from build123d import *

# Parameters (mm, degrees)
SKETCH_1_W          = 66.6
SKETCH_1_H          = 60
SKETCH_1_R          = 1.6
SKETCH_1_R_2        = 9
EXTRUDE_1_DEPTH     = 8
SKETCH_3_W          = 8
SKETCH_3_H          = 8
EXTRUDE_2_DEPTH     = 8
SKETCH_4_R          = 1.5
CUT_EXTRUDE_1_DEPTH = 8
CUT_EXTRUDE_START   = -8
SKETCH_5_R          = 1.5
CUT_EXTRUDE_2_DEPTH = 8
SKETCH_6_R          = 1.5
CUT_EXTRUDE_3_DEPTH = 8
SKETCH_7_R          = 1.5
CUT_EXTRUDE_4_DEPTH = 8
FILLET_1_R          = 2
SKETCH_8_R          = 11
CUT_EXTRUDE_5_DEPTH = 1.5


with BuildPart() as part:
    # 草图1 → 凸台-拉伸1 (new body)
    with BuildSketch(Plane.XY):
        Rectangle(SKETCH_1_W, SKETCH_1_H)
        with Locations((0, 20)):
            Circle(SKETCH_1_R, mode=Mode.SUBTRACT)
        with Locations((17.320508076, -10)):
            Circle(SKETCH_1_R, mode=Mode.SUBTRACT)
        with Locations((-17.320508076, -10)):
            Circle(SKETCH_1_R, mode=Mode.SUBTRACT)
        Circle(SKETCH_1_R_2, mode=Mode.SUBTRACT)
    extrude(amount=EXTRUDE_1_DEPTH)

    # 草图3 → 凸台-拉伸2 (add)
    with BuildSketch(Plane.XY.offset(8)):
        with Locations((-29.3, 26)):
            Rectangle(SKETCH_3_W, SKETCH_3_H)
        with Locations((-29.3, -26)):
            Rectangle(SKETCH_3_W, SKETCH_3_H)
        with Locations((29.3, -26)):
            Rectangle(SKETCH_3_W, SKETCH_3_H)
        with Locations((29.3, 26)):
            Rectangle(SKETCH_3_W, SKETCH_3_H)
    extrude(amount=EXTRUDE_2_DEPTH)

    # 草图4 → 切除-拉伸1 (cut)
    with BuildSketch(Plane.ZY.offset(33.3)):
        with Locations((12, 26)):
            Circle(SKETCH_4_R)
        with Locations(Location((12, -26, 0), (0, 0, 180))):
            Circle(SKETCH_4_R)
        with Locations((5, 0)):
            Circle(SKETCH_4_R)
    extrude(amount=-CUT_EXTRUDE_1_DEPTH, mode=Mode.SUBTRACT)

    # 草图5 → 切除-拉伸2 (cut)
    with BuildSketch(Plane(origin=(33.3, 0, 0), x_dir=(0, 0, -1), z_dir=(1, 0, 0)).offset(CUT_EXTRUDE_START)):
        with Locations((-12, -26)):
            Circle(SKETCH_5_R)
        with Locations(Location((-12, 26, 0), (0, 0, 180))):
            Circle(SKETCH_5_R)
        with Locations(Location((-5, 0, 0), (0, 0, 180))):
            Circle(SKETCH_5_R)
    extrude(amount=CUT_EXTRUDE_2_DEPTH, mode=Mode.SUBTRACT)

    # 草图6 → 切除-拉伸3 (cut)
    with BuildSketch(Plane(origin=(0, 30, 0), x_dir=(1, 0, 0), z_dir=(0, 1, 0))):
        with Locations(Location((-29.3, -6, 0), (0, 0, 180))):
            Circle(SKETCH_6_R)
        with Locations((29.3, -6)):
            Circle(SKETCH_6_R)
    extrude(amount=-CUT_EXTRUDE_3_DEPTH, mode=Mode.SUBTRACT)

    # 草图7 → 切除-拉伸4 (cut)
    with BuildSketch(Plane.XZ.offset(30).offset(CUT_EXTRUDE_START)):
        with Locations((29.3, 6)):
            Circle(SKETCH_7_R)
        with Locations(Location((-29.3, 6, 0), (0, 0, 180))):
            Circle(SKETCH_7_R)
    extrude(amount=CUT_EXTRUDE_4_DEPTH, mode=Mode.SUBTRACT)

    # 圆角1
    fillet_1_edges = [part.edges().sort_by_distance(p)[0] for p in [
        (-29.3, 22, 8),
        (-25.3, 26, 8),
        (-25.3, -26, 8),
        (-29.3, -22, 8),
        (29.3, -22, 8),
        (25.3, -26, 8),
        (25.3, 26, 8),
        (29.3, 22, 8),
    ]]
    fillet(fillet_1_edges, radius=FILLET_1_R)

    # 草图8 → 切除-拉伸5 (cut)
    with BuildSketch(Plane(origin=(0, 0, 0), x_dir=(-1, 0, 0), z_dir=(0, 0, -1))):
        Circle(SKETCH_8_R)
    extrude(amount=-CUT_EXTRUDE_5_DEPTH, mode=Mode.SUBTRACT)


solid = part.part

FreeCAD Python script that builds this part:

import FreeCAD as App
import Part
import Sketcher
from FreeCAD import Vector
Q = App.Units.Quantity


def edges_at(feature, points):
    """Names of the edges that pass closest to the given points."""
    edges = feature.Shape.Edges
    near = lambda p: min(range(len(edges)), key=lambda i: edges[i].distToShape(Part.Vertex(*p))[0])
    return sorted({f"Edge{near(p) + 1}" for p in points})

doc = App.newDocument("Part")
body = doc.addObject("PartDesign::Body", "Body")

sketch1 = body.newObject("Sketcher::SketchObject", "Sketch")
sketch1.AttachmentSupport = (doc.getObject("XY_Plane"), [""])
sketch1.MapMode = "FlatFace"
sketch1.addGeometry(Part.LineSegment(Vector(-33.3, 30, 0), Vector(-33.3, -30, 0)), False)
sketch1.addGeometry(Part.LineSegment(Vector(-33.3, -30, 0), Vector(33.3, -30, 0)), False)
sketch1.addGeometry(Part.LineSegment(Vector(33.3, -30, 0), Vector(33.3, 30, 0)), False)
sketch1.addGeometry(Part.LineSegment(Vector(33.3, 30, 0), Vector(-33.3, 30, 0)), False)
sketch1.addGeometry(Part.Circle(Vector(-17.3, -10, 0), Vector(0, 0, 1), 1.6), False)
sketch1.addGeometry(Part.Circle(Vector(17.3, -10, 0), Vector(0, 0, 1), 1.6), False)
sketch1.addGeometry(Part.Circle(Vector(0, 0, 0), Vector(0, 0, 1), 9), False)
sketch1.addGeometry(Part.Circle(Vector(0, 20, 0), Vector(0, 0, 1), 1.6), False)
sketch1.addConstraint(Sketcher.Constraint("Coincident", 0, 2, 1, 1))
sketch1.addConstraint(Sketcher.Constraint("Coincident", 1, 2, 2, 1))
sketch1.addConstraint(Sketcher.Constraint("Coincident", 2, 2, 3, 1))
sketch1.addConstraint(Sketcher.Constraint("Coincident", 3, 2, 0, 1))
sketch1.addConstraint(Sketcher.Constraint("Vertical", 0))
sketch1.addConstraint(Sketcher.Constraint("Horizontal", 1))
sketch1.addConstraint(Sketcher.Constraint("Vertical", 2))
sketch1.addConstraint(Sketcher.Constraint("Horizontal", 3))
sketch1.addConstraint(Sketcher.Constraint("Coincident", 6, 3, -1, 1))
sketch1.addConstraint(Sketcher.Constraint("Equal", 4, 5))
sketch1.addConstraint(Sketcher.Constraint("Equal", 5, 7))
sketch1.addConstraint(Sketcher.Constraint("Symmetric", 0, 2, 2, 2, -1, 1))
sketch1.addConstraint(Sketcher.Constraint("Symmetric", 4, 3, 5, 3, -2))
sketch1.addConstraint(Sketcher.Constraint("PointOnObject", 7, 3, -2))
sketch1.addConstraint(Sketcher.Constraint("Diameter", 6, Q("18 mm")))
sketch1.addConstraint(Sketcher.Constraint("Diameter", 4, Q("3.2 mm")))
sketch1.addConstraint(Sketcher.Constraint("DistanceY", 0, 2, 0, 1, Q("60 mm")))
sketch1.addConstraint(Sketcher.Constraint("DistanceX", 1, 1, 1, 2, Q("66.6 mm")))
sketch1.addConstraint(Sketcher.Constraint("DistanceY", 4, 3, -1, 1, Q("10 mm")))
sketch1.addConstraint(Sketcher.Constraint("DistanceY", -1, 1, 7, 3, Q("20 mm")))
sketch1.addConstraint(Sketcher.Constraint("DistanceX", 4, 3, -1, 1, Q("17.320508 mm")))
pad1 = body.newObject("PartDesign::Pad", "Pad")
pad1.Profile = sketch1
pad1.Length = 8

sketch2 = body.newObject("Sketcher::SketchObject", "Sketch001")
sketch2.AttachmentSupport = (doc.getObject("XY_Plane"), [""])
sketch2.MapMode = "FlatFace"
sketch2.AttachmentOffset = App.Placement(Vector(0, 0, 8), App.Rotation())
sketch2.addGeometry(Part.LineSegment(Vector(-33, 30, 0), Vector(-33, 22, 0)), False)
sketch2.addGeometry(Part.LineSegment(Vector(-33, 22, 0), Vector(-25, 22, 0)), False)
sketch2.addGeometry(Part.LineSegment(Vector(-25, 22, 0), Vector(-25, 30, 0)), False)
sketch2.addGeometry(Part.LineSegment(Vector(-25, 30, 0), Vector(-33, 30, 0)), False)
sketch2.addGeometry(Part.LineSegment(Vector(-33, -22, 0), Vector(-33, -30, 0)), False)
sketch2.addGeometry(Part.LineSegment(Vector(-33, -30, 0), Vector(-25, -30, 0)), False)
sketch2.addGeometry(Part.LineSegment(Vector(-25, -30, 0), Vector(-25, -22, 0)), False)
sketch2.addGeometry(Part.LineSegment(Vector(-25, -22, 0), Vector(-33, -22, 0)), False)
sketch2.addGeometry(Part.LineSegment(Vector(25, -22, 0), Vector(25, -30, 0)), False)
sketch2.addGeometry(Part.LineSegment(Vector(25, -30, 0), Vector(33, -30, 0)), False)
sketch2.addGeometry(Part.LineSegment(Vector(33, -30, 0), Vector(33, -22, 0)), False)
sketch2.addGeometry(Part.LineSegment(Vector(33, -22, 0), Vector(25, -22, 0)), False)
sketch2.addGeometry(Part.LineSegment(Vector(25, 30, 0), Vector(25, 22, 0)), False)
sketch2.addGeometry(Part.LineSegment(Vector(25, 22, 0), Vector(33, 22, 0)), False)
sketch2.addGeometry(Part.LineSegment(Vector(33, 22, 0), Vector(33, 30, 0)), False)
sketch2.addGeometry(Part.LineSegment(Vector(33, 30, 0), Vector(25, 30, 0)), False)
sketch2.addConstraint(Sketcher.Constraint("Coincident", 0, 2, 1, 1))
sketch2.addConstraint(Sketcher.Constraint("Coincident", 1, 2, 2, 1))
sketch2.addConstraint(Sketcher.Constraint("Coincident", 2, 2, 3, 1))
sketch2.addConstraint(Sketcher.Constraint("Coincident", 3, 2, 0, 1))
sketch2.addConstraint(Sketcher.Constraint("Coincident", 4, 2, 5, 1))
sketch2.addConstraint(Sketcher.Constraint("Coincident", 5, 2, 6, 1))
sketch2.addConstraint(Sketcher.Constraint("Coincident", 6, 2, 7, 1))
sketch2.addConstraint(Sketcher.Constraint("Coincident", 7, 2, 4, 1))
sketch2.addConstraint(Sketcher.Constraint("Coincident", 8, 2, 9, 1))
sketch2.addConstraint(Sketcher.Constraint("Coincident", 9, 2, 10, 1))
sketch2.addConstraint(Sketcher.Constraint("Coincident", 10, 2, 11, 1))
sketch2.addConstraint(Sketcher.Constraint("Coincident", 11, 2, 8, 1))
sketch2.addConstraint(Sketcher.Constraint("Coincident", 12, 2, 13, 1))
sketch2.addConstraint(Sketcher.Constraint("Coincident", 13, 2, 14, 1))
sketch2.addConstraint(Sketcher.Constraint("Coincident", 14, 2, 15, 1))
sketch2.addConstraint(Sketcher.Constraint("Coincident", 15, 2, 12, 1))
sketch2.addConstraint(Sketcher.Constraint("Vertical", 0))
sketch2.addConstraint(Sketcher.Constraint("Horizontal", 1))
sketch2.addConstraint(Sketcher.Constraint("Vertical", 2))
sketch2.addConstraint(Sketcher.Constraint("Horizontal", 3))
sketch2.addConstraint(Sketcher.Constraint("Vertical", 4))
sketch2.addConstraint(Sketcher.Constraint("Horizontal", 5))
sketch2.addConstraint(Sketcher.Constraint("Vertical", 6))
sketch2.addConstraint(Sketcher.Constraint("Horizontal", 7))
sketch2.addConstraint(Sketcher.Constraint("Vertical", 8))
sketch2.addConstraint(Sketcher.Constraint("Horizontal", 9))
sketch2.addConstraint(Sketcher.Constraint("Vertical", 10))
sketch2.addConstraint(Sketcher.Constraint("Horizontal", 11))
sketch2.addConstraint(Sketcher.Constraint("Vertical", 12))
sketch2.addConstraint(Sketcher.Constraint("Horizontal", 13))
sketch2.addConstraint(Sketcher.Constraint("Vertical", 14))
sketch2.addConstraint(Sketcher.Constraint("Horizontal", 15))
sketch2.addConstraint(Sketcher.Constraint("Symmetric", 2, 2, 8, 2, -1, 1))
sketch2.addConstraint(Sketcher.Constraint("Symmetric", 0, 2, 10, 2, -1, 1))
sketch2.addConstraint(Sketcher.Constraint("Symmetric", 6, 2, 12, 2, -1, 1))
sketch2.addConstraint(Sketcher.Constraint("Symmetric", 4, 2, 14, 2, -1, 1))
sketch2.addConstraint(Sketcher.Constraint("Symmetric", 5, 2, 8, 2, -2))
sketch2.addConstraint(Sketcher.Constraint("Symmetric", 7, 2, 10, 2, -2))
sketch2.addConstraint(Sketcher.Constraint("Equal", 15, 0))
sketch2.addConstraint(Sketcher.Constraint("DistanceX", 1, 1, 1, 2, Q("8 mm")))
sketch2.addConstraint(Sketcher.Constraint("DistanceY", -1, 1, 0, 2, Q("22 mm")))
sketch2.addConstraint(Sketcher.Constraint("DistanceX", 0, 2, -1, 1, Q("33.3 mm")))
pad2 = body.newObject("PartDesign::Pad", "Pad001")
pad2.Profile = sketch2
pad2.Length = 8

sketch3 = body.newObject("Sketcher::SketchObject", "Sketch002")
sketch3.AttachmentSupport = (doc.getObject("YZ_Plane"), [""])
sketch3.MapMode = "FlatFace"
sketch3.AttachmentOffset = App.Placement(Vector(0, 0, -33.3), App.Rotation())
sketch3.addGeometry(Part.Circle(Vector(26, 12, 0), Vector(0, 0, 1), 1.5), False)
sketch3.addGeometry(Part.Circle(Vector(-26, 12, 0), Vector(0, 0, 1), 1.5), False)
sketch3.addGeometry(Part.Circle(Vector(0, 5, 0), Vector(0, 0, 1), 1.5), False)
sketch3.addConstraint(Sketcher.Constraint("Equal", 0, 1))
sketch3.addConstraint(Sketcher.Constraint("Equal", 1, 2))
sketch3.addConstraint(Sketcher.Constraint("Symmetric", 0, 3, 1, 3, -2))
sketch3.addConstraint(Sketcher.Constraint("PointOnObject", 2, 3, -2))
sketch3.addConstraint(Sketcher.Constraint("Diameter", 0, Q("3 mm")))
sketch3.addConstraint(Sketcher.Constraint("DistanceX", -1, 1, 0, 3, Q("26 mm")))
sketch3.addConstraint(Sketcher.Constraint("DistanceY", -1, 1, 0, 3, Q("12 mm")))
sketch3.addConstraint(Sketcher.Constraint("DistanceY", -1, 1, 2, 3, Q("5 mm")))
pocket1 = body.newObject("PartDesign::Pocket", "Pocket")
pocket1.Profile = sketch3
pocket1.Length = 8
pocket1.Reversed = True

sketch4 = body.newObject("Sketcher::SketchObject", "Sketch003")
sketch4.AttachmentSupport = (doc.getObject("YZ_Plane"), [""])
sketch4.MapMode = "FlatFace"
sketch4.AttachmentOffset = App.Placement(Vector(0, 0, 25.3), App.Rotation())
sketch4.addGeometry(Part.Circle(Vector(-26, 12, 0), Vector(0, 0, 1), 1.5), False)
sketch4.addGeometry(Part.Circle(Vector(26, 12, 0), Vector(0, 0, 1), 1.5), False)
sketch4.addGeometry(Part.Circle(Vector(0, 5, 0), Vector(0, 0, 1), 1.5), False)
sketch4.addConstraint(Sketcher.Constraint("Equal", 0, 1))
sketch4.addConstraint(Sketcher.Constraint("Equal", 1, 2))
sketch4.addConstraint(Sketcher.Constraint("Symmetric", 0, 3, 1, 3, -2))
sketch4.addConstraint(Sketcher.Constraint("PointOnObject", 2, 3, -2))
sketch4.addConstraint(Sketcher.Constraint("Diameter", 0, Q("3 mm")))
sketch4.addConstraint(Sketcher.Constraint("DistanceX", 0, 3, -1, 1, Q("26 mm")))
sketch4.addConstraint(Sketcher.Constraint("DistanceY", -1, 1, 0, 3, Q("12 mm")))
sketch4.addConstraint(Sketcher.Constraint("DistanceY", -1, 1, 2, 3, Q("5 mm")))
pocket2 = body.newObject("PartDesign::Pocket", "Pocket001")
pocket2.Profile = sketch4
pocket2.Length = 8
pocket2.Reversed = True

sketch5 = body.newObject("Sketcher::SketchObject", "Sketch004")
sketch5.AttachmentSupport = (doc.getObject("XZ_Plane"), [""])
sketch5.MapMode = "FlatFace"
sketch5.AttachmentOffset = App.Placement(Vector(0, 0, -30), App.Rotation())
sketch5.addGeometry(Part.Circle(Vector(-29.3, 6, 0), Vector(0, 0, 1), 1.5), False)
sketch5.addGeometry(Part.Circle(Vector(29.3, 6, 0), Vector(0, 0, 1), 1.5), False)
sketch5.addConstraint(Sketcher.Constraint("Equal", 0, 1))
sketch5.addConstraint(Sketcher.Constraint("Symmetric", 0, 3, 1, 3, -2))
sketch5.addConstraint(Sketcher.Constraint("Diameter", 0, Q("3 mm")))
sketch5.addConstraint(Sketcher.Constraint("DistanceY", -1, 1, 0, 3, Q("6 mm")))
sketch5.addConstraint(Sketcher.Constraint("DistanceX", 0, 3, -1, 1, Q("29.3 mm")))
pocket3 = body.newObject("PartDesign::Pocket", "Pocket002")
pocket3.Profile = sketch5
pocket3.Length = 8
pocket3.Reversed = True

sketch6 = body.newObject("Sketcher::SketchObject", "Sketch005")
sketch6.AttachmentSupport = (doc.getObject("XZ_Plane"), [""])
sketch6.MapMode = "FlatFace"
sketch6.AttachmentOffset = App.Placement(Vector(0, 0, 22), App.Rotation())
sketch6.addGeometry(Part.Circle(Vector(29.3, 6, 0), Vector(0, 0, 1), 1.5), False)
sketch6.addGeometry(Part.Circle(Vector(-29.3, 6, 0), Vector(0, 0, 1), 1.5), False)
sketch6.addConstraint(Sketcher.Constraint("Equal", 0, 1))
sketch6.addConstraint(Sketcher.Constraint("Symmetric", 0, 3, 1, 3, -2))
sketch6.addConstraint(Sketcher.Constraint("Diameter", 0, Q("3 mm")))
sketch6.addConstraint(Sketcher.Constraint("DistanceY", -1, 1, 0, 3, Q("6 mm")))
sketch6.addConstraint(Sketcher.Constraint("DistanceX", -1, 1, 0, 3, Q("29.3 mm")))
pocket4 = body.newObject("PartDesign::Pocket", "Pocket003")
pocket4.Profile = sketch6
pocket4.Length = 8
pocket4.Reversed = True
doc.recompute()

fillet = body.newObject("PartDesign::Fillet", "Fillet")
fillet.Base = (pocket4, edges_at(pocket4, [
    (-29.3, 22, 8),
    (-25.3, 26, 8),
    (-25.3, -26, 8),
    (-29.3, -22, 8),
    (29.3, -22, 8),
    (25.3, -26, 8),
    (25.3, 26, 8),
    (29.3, 22, 8),
]))
fillet.Radius = 2

sketch7 = body.newObject("Sketcher::SketchObject", "Sketch006")
sketch7.AttachmentSupport = (doc.getObject("XY_Plane"), [""])
sketch7.MapMode = "FlatFace"
sketch7.addGeometry(Part.Circle(Vector(0, 0, 0), Vector(0, 0, 1), 11), False)
sketch7.addConstraint(Sketcher.Constraint("Coincident", 0, 3, -1, 1))
sketch7.addConstraint(Sketcher.Constraint("Diameter", 0, Q("22 mm")))
pocket5 = body.newObject("PartDesign::Pocket", "Pocket004")
pocket5.Profile = sketch7
pocket5.Length = 1.5
pocket5.Reversed = True

doc.recompute()
